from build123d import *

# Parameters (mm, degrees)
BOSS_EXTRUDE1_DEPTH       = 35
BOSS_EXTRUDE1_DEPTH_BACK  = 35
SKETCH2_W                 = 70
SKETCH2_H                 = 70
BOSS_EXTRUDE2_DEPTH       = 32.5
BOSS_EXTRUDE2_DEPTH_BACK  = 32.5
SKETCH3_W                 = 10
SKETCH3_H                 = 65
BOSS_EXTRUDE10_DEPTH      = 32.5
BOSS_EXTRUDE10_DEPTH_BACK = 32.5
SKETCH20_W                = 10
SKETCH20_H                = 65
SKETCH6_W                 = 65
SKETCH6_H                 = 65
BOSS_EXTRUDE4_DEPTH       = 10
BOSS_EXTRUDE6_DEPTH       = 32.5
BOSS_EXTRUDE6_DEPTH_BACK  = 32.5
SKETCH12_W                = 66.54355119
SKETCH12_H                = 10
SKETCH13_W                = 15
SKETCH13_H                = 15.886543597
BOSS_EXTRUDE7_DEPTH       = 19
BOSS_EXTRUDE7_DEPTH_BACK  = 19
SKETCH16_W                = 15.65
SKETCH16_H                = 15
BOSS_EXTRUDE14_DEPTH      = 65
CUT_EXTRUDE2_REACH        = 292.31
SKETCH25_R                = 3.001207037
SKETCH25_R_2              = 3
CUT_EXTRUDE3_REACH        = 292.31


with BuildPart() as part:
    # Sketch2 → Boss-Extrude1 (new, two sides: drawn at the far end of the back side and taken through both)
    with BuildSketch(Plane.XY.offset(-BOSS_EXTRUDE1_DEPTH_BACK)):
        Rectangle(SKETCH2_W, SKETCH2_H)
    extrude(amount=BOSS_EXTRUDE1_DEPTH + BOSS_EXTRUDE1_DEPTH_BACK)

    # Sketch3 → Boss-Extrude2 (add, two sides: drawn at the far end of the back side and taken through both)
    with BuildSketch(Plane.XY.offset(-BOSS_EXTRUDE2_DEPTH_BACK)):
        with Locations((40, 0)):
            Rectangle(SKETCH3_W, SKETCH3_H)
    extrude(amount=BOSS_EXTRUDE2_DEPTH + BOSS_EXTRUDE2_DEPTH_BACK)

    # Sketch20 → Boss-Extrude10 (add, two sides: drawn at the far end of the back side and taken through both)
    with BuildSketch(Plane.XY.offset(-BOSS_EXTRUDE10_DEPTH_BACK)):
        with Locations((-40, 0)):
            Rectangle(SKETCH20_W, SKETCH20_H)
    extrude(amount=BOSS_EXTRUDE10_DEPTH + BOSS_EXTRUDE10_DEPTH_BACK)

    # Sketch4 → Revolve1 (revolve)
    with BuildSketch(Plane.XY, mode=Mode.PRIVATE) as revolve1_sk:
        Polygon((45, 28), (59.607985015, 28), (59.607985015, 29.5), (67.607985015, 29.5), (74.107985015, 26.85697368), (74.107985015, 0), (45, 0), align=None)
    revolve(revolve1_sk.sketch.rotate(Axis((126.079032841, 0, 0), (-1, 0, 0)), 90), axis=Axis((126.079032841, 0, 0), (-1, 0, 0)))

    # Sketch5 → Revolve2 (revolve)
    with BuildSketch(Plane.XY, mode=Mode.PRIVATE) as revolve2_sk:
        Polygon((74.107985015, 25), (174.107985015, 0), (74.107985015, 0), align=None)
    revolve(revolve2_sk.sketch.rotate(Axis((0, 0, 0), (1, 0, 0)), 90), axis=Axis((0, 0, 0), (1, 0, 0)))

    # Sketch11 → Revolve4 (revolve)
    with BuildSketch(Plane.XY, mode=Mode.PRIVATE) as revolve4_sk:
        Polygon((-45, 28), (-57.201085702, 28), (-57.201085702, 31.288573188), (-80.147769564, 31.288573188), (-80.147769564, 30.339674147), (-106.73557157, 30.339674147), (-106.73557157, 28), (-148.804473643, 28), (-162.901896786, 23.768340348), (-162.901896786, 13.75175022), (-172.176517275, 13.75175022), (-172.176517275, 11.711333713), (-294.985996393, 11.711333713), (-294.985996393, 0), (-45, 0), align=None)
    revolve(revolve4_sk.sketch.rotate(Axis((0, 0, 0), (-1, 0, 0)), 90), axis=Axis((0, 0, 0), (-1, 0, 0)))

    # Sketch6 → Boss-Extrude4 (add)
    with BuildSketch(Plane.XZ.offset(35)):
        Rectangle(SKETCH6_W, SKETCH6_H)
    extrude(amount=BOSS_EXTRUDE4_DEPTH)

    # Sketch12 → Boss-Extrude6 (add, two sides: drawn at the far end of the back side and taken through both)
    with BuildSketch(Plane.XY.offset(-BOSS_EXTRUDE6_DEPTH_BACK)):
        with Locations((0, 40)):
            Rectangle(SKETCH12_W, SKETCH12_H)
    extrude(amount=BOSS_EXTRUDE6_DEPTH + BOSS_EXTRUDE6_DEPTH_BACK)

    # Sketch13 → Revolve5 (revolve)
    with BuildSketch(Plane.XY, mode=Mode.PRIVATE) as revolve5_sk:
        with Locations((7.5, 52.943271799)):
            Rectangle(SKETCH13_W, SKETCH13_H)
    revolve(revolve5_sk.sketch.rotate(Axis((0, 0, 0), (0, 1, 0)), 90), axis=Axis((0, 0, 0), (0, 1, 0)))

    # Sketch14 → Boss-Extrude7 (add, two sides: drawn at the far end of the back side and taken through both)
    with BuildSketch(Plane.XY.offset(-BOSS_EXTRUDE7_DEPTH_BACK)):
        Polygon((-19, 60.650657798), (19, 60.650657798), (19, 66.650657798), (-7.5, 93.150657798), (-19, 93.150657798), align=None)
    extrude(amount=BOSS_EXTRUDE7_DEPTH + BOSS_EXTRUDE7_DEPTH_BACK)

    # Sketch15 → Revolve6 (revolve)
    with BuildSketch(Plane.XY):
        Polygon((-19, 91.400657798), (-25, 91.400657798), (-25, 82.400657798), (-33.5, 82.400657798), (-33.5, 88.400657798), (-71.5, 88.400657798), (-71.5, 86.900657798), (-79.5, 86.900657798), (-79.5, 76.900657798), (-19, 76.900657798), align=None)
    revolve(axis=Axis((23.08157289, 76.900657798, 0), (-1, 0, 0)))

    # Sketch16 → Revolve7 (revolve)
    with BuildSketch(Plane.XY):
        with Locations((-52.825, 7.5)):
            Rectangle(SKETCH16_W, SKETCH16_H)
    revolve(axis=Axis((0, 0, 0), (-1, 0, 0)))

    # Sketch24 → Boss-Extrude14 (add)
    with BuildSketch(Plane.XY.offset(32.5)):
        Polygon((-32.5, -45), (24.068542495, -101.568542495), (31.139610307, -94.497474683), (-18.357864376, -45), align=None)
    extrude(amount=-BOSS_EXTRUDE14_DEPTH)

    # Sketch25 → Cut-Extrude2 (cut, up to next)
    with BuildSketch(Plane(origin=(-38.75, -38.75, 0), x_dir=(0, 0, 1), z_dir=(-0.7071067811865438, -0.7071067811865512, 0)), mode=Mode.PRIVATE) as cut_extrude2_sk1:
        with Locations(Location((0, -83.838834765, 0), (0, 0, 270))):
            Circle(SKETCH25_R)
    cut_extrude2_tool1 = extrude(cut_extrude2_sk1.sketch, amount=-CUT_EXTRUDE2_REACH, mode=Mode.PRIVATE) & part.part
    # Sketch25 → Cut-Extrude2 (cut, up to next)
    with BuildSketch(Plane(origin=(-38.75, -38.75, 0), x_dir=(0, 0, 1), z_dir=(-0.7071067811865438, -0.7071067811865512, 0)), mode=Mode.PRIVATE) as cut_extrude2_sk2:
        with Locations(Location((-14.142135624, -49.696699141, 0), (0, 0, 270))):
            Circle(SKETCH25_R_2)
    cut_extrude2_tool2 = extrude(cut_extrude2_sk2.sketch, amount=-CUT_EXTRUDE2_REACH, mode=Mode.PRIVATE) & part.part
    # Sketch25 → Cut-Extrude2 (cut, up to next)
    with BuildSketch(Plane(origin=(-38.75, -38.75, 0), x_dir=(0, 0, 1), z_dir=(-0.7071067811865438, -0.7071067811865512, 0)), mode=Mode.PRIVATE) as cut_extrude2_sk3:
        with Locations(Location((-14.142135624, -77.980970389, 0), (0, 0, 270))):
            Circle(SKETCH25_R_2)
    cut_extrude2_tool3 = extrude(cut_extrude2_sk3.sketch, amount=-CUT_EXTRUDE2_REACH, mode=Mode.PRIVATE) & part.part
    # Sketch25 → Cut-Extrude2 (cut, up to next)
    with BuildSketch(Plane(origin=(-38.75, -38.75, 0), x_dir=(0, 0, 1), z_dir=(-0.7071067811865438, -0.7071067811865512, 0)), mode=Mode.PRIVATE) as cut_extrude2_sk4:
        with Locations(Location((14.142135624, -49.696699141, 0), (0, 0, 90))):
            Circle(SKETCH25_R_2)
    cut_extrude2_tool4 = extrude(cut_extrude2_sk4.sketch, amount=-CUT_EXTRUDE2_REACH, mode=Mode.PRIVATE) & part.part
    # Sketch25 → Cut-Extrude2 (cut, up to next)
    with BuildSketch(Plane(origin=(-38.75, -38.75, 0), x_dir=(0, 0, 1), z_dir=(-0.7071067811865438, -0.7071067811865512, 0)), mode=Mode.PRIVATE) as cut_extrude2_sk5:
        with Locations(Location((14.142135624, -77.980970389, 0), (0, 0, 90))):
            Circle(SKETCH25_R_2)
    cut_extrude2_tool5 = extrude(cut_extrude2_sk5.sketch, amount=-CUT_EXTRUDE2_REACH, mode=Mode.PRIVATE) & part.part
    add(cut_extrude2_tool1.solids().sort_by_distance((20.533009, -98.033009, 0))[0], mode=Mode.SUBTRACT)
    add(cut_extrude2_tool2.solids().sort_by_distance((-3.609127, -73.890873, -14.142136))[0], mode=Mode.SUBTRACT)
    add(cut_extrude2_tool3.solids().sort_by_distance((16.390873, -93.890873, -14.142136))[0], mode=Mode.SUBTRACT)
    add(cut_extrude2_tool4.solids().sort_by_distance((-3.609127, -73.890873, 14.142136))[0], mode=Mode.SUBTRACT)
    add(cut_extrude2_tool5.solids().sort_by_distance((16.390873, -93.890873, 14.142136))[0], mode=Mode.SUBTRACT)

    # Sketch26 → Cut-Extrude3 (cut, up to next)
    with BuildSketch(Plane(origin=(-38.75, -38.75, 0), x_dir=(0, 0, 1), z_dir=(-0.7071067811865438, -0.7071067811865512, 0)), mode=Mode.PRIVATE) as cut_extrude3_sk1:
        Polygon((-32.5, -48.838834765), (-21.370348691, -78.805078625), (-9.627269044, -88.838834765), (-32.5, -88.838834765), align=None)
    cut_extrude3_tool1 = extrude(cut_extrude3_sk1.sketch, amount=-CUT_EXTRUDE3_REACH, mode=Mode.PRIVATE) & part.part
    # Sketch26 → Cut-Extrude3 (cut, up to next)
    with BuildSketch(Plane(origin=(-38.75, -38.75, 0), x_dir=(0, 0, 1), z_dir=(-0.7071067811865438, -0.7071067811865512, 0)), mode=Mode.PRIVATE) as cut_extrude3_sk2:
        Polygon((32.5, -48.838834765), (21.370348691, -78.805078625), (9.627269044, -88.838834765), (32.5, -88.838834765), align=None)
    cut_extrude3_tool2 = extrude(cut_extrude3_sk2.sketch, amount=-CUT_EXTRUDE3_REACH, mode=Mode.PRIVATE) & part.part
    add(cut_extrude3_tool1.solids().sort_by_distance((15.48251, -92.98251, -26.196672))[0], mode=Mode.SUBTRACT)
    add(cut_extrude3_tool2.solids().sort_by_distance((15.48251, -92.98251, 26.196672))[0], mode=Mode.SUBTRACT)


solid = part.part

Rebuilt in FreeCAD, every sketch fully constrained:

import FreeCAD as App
import Part
import Sketcher

V = App.Vector
Q = App.Units.Quantity

doc = App.newDocument("Part")
body = doc.addObject("PartDesign::Body", "Body")

sketch1 = doc.addObject("Sketcher::SketchObject", "Sketch")
body.addObject(sketch1)
sketch1.AttachmentSupport = (doc.XY_Plane, [""])
sketch1.MapMode = "FlatFace"
sketch1.addGeometry([
    Part.LineSegment(V(-35, 35, 0), V(-35, -35, 0)),
    Part.LineSegment(V(-35, -35, 0), V(35, -35, 0)),
    Part.LineSegment(V(35, -35, 0), V(35, 35, 0)),
    Part.LineSegment(V(35, 35, 0), V(-35, 35, 0)),
], False)
sketch1.addConstraint([
    Sketcher.Constraint("Coincident", 0, 2, 1, 1),
    Sketcher.Constraint("Coincident", 1, 2, 2, 1),
    Sketcher.Constraint("Coincident", 2, 2, 3, 1),
    Sketcher.Constraint("Coincident", 3, 2, 0, 1),
    Sketcher.Constraint("Vertical", 0),
    Sketcher.Constraint("Horizontal", 1),
    Sketcher.Constraint("Vertical", 2),
    Sketcher.Constraint("Horizontal", 3),
    Sketcher.Constraint("Symmetric", 0, 2, 2, 2, -1, 1),
    Sketcher.Constraint("Equal", 3, 0),
    Sketcher.Constraint("DistanceX", 1, 1, 1, 2, 70.0),
])
pad1 = doc.addObject("PartDesign::Pad", "Pad")
body.addObject(pad1)
pad1.Profile = sketch1
pad1.Type = "TwoLengths"
pad1.Length = 35
pad1.Length2 = 35

sketch2 = doc.addObject("Sketcher::SketchObject", "Sketch001")
body.addObject(sketch2)
sketch2.AttachmentSupport = (doc.XY_Plane, [""])
sketch2.MapMode = "FlatFace"
sketch2.addGeometry([
    Part.LineSegment(V(35, 32, 0), V(35, -32, 0)),
    Part.LineSegment(V(35, -32, 0), V(45, -32, 0)),
    Part.LineSegment(V(45, -32, 0), V(45, 32, 0)),
    Part.LineSegment(V(45, 32, 0), V(35, 32, 0)),
], False)
sketch2.addConstraint([
    Sketcher.Constraint("Coincident", 0, 2, 1, 1),
    Sketcher.Constraint("Coincident", 1, 2, 2, 1),
    Sketcher.Constraint("Coincident", 2, 2, 3, 1),
    Sketcher.Constraint("Coincident", 3, 2, 0, 1),
    Sketcher.Constraint("Vertical", 0),
    Sketcher.Constraint("Horizontal", 1),
    Sketcher.Constraint("Vertical", 2),
    Sketcher.Constraint("Horizontal", 3),
    Sketcher.Constraint("DistanceX", 1, 1, 1, 2, 10.0),
    Sketcher.Constraint("DistanceY", 0, 2, 0, 1, 65.0),
    Sketcher.Constraint("DistanceX", -1, 1, 0, 2, 35.0),
    Sketcher.Constraint("DistanceY", 0, 2, -1, 1, 32.5),
])
pad2 = doc.addObject("PartDesign::Pad", "Pad001")
body.addObject(pad2)
pad2.Profile = sketch2
pad2.Type = "TwoLengths"
pad2.Length = 32.5
pad2.Length2 = 32.5

sketch3 = doc.addObject("Sketcher::SketchObject", "Sketch002")
body.addObject(sketch3)
sketch3.AttachmentSupport = (doc.XY_Plane, [""])
sketch3.MapMode = "FlatFace"
sketch3.addGeometry([
    Part.LineSegment(V(-45, 32, 0), V(-45, -32, 0)),
    Part.LineSegment(V(-45, -32, 0), V(-35, -32, 0)),
    Part.LineSegment(V(-35, -32, 0), V(-35, 32, 0)),
    Part.LineSegment(V(-35, 32, 0), V(-45, 32, 0)),
], False)
sketch3.addConstraint([
    Sketcher.Constraint("Coincident", 0, 2, 1, 1),
    Sketcher.Constraint("Coincident", 1, 2, 2, 1),
    Sketcher.Constraint("Coincident", 2, 2, 3, 1),
    Sketcher.Constraint("Coincident", 3, 2, 0, 1),
    Sketcher.Constraint("Vertical", 0),
    Sketcher.Constraint("Horizontal", 1),
    Sketcher.Constraint("Vertical", 2),
    Sketcher.Constraint("Horizontal", 3),
    Sketcher.Constraint("DistanceX", 1, 1, 1, 2, 10.0),
    Sketcher.Constraint("DistanceY", 0, 2, 0, 1, 65.0),
    Sketcher.Constraint("DistanceX", 0, 2, -1, 1, 45.0),
    Sketcher.Constraint("DistanceY", 0, 2, -1, 1, 32.5),
])
pad3 = doc.addObject("PartDesign::Pad", "Pad002")
body.addObject(pad3)
pad3.Profile = sketch3
pad3.Type = "TwoLengths"
pad3.Length = 32.5
pad3.Length2 = 32.5

sketch4 = doc.addObject("Sketcher::SketchObject", "Sketch003")
body.addObject(sketch4)
sketch4.AttachmentSupport = (doc.XY_Plane, [""])
sketch4.MapMode = "FlatFace"
sketch4.addGeometry([
    Part.LineSegment(V(59.6, 28, 0), V(45, 28, 0)),
    Part.LineSegment(V(45, 28, 0), V(45, 0, 0)),
    Part.LineSegment(V(45, 0, 0), V(74.1, 0, 0)),
    Part.LineSegment(V(74.1, 0, 0), V(74.1, 26.9, 0)),
    Part.LineSegment(V(74.1, 26.9, 0), V(67.6, 29.5, 0)),
    Part.LineSegment(V(67.6, 29.5, 0), V(59.6, 29.5, 0)),
    Part.LineSegment(V(59.6, 29.5, 0), V(59.6, 28, 0)),
], False)
sketch4.addConstraint([
    Sketcher.Constraint("Coincident", 0, 2, 1, 1),
    Sketcher.Constraint("Coincident", 1, 2, 2, 1),
    Sketcher.Constraint("Coincident", 2, 2, 3, 1),
    Sketcher.Constraint("Coincident", 3, 2, 4, 1),
    Sketcher.Constraint("Coincident", 4, 2, 5, 1),
    Sketcher.Constraint("Coincident", 5, 2, 6, 1),
    Sketcher.Constraint("Coincident", 6, 2, 0, 1),
    Sketcher.Constraint("Horizontal", 0),
    Sketcher.Constraint("Vertical", 1),
    Sketcher.Constraint("Horizontal", 2),
    Sketcher.Constraint("Vertical", 3),
    Sketcher.Constraint("Horizontal", 5),
    Sketcher.Constraint("Vertical", 6),
    Sketcher.Constraint("PointOnObject", 1, 2, -1),
    Sketcher.Constraint("DistanceX", 5, 2, 5, 1, 8.0),
    Sketcher.Constraint("DistanceY", 1, 2, 1, 1, 28.0),
    Sketcher.Constraint("DistanceY", 6, 2, 6, 1, 1.5),
    Sketcher.Constraint("DistanceX", -1, 1, 0, 2, 45.0),
    Sketcher.Constraint("DistanceX", 4, 2, 3, 2, 6.5),
    Sketcher.Constraint("DistanceX", 0, 2, 0, 1, 14.607985),
    Sketcher.Constraint("DistanceY", 3, 1, 3, 2, 26.856974),
])
revolution = doc.addObject("PartDesign::Revolution", "Revolution")
body.addObject(revolution)
revolution.Profile = sketch4
revolution.ReferenceAxis = (sketch4, ["H_Axis"])
revolution.Angle = 360

sketch5 = doc.addObject("Sketcher::SketchObject", "Sketch004")
body.addObject(sketch5)
sketch5.AttachmentSupport = (doc.XY_Plane, [""])
sketch5.MapMode = "FlatFace"
sketch5.addGeometry([
    Part.LineSegment(V(174, 0, 0), V(74, 25, 0)),
    Part.LineSegment(V(74, 25, 0), V(74, 0, 0)),
    Part.LineSegment(V(74, 0, 0), V(174, 0, 0)),
], False)
sketch5.addConstraint([
    Sketcher.Constraint("Coincident", 0, 2, 1, 1),
    Sketcher.Constraint("Coincident", 1, 2, 2, 1),
    Sketcher.Constraint("Coincident", 2, 2, 0, 1),
    Sketcher.Constraint("Vertical", 1),
    Sketcher.Constraint("Horizontal", 2),
    Sketcher.Constraint("PointOnObject", 1, 2, -1),
    Sketcher.Constraint("DistanceX", 2, 1, 2, 2, 100.0),
    Sketcher.Constraint("DistanceY", 1, 2, 1, 1, 25.0),
    Sketcher.Constraint("DistanceX", -1, 1, 0, 2, 74.107985),
])
revolution2 = doc.addObject("PartDesign::Revolution", "Revolution001")
body.addObject(revolution2)
revolution2.Profile = sketch5
revolution2.ReferenceAxis = (sketch5, ["H_Axis"])
revolution2.Angle = 360

sketch6 = doc.addObject("Sketcher::SketchObject", "Sketch005")
body.addObject(sketch6)
sketch6.AttachmentSupport = (doc.XY_Plane, [""])
sketch6.MapMode = "FlatFace"
sketch6.addGeometry([
    Part.LineSegment(V(-45, 28, 0), V(-57.2, 28, 0)),
    Part.LineSegment(V(-57.2, 28, 0), V(-57.2, 31.3, 0)),
    Part.LineSegment(V(-57.2, 31.3, 0), V(-80.1, 31.3, 0)),
    Part.LineSegment(V(-80.1, 31.3, 0), V(-80.1, 30.3, 0)),
    Part.LineSegment(V(-80.1, 30.3, 0), V(-106.7, 30.3, 0)),
    Part.LineSegment(V(-106.7, 30.3, 0), V(-106.7, 28, 0)),
    Part.LineSegment(V(-106.7, 28, 0), V(-148.8, 28, 0)),
    Part.LineSegment(V(-148.8, 28, 0), V(-162.9, 23.8, 0)),
    Part.LineSegment(V(-162.9, 23.8, 0), V(-162.9, 13.8, 0)),
    Part.LineSegment(V(-162.9, 13.8, 0), V(-172.2, 13.8, 0)),
    Part.LineSegment(V(-172.2, 13.8, 0), V(-172.2, 11.7, 0)),
    Part.LineSegment(V(-172.2, 11.7, 0), V(-295, 11.7, 0)),
    Part.LineSegment(V(-295, 11.7, 0), V(-295, 0, 0)),
    Part.LineSegment(V(-295, 0, 0), V(-45, 0, 0)),
    Part.LineSegment(V(-45, 0, 0), V(-45, 28, 0)),
], False)
sketch6.addConstraint([
    Sketcher.Constraint("Coincident", 0, 2, 1, 1),
    Sketcher.Constraint("Coincident", 1, 2, 2, 1),
    Sketcher.Constraint("Coincident", 2, 2, 3, 1),
    Sketcher.Constraint("Coincident", 3, 2, 4, 1),
    Sketcher.Constraint("Coincident", 4, 2, 5, 1),
    Sketcher.Constraint("Coincident", 5, 2, 6, 1),
    Sketcher.Constraint("Coincident", 6, 2, 7, 1),
    Sketcher.Constraint("Coincident", 7, 2, 8, 1),
    Sketcher.Constraint("Coincident", 8, 2, 9, 1),
    Sketcher.Constraint("Coincident", 9, 2, 10, 1),
    Sketcher.Constraint("Coincident", 10, 2, 11, 1),
    Sketcher.Constraint("Coincident", 11, 2, 12, 1),
    Sketcher.Constraint("Coincident", 12, 2, 13, 1),
    Sketcher.Constraint("Coincident", 13, 2, 14, 1),
    Sketcher.Constraint("Coincident", 14, 2, 0, 1),
    Sketcher.Constraint("Horizontal", 0),
    Sketcher.Constraint("Vertical", 1),
    Sketcher.Constraint("Horizontal", 2),
    Sketcher.Constraint("Vertical", 3),
    Sketcher.Constraint("Horizontal", 4),
    Sketcher.Constraint("Vertical", 5),
    Sketcher.Constraint("Horizontal", 6),
    Sketcher.Constraint("Vertical", 8),
    Sketcher.Constraint("Horizontal", 9),
    Sketcher.Constraint("Vertical", 10),
    Sketcher.Constraint("Horizontal", 11),
    Sketcher.Constraint("Vertical", 12),
    Sketcher.Constraint("Horizontal", 13),
    Sketcher.Constraint("Vertical", 14),
    Sketcher.Constraint("PointOnObject", 12, 2, -1),
    Sketcher.Constraint("Horizontal", 0, 2, 5, 2),
    Sketcher.Constraint("DistanceY", 14, 1, 14, 2, 28.0),
    Sketcher.Constraint("DistanceX", 13, 2, -1, 1, 45.0),
    Sketcher.Constraint("DistanceY", 3, 2, 3, 1, 0.948899),
    Sketcher.Constraint("DistanceX", 9, 2, 9, 1, 9.27462),
    Sketcher.Constraint("DistanceX", 11, 2, 11, 1, 122.809479),
    Sketcher.Constraint("DistanceY", 8, 2, 8, 1, 10.01659),
    Sketcher.Constraint("Distance", 7, 14.718841),
    Sketcher.Constraint("DistanceX", 0, 2, 0, 1, 12.201086),
    Sketcher.Constraint("DistanceX", 2, 2, 2, 1, 22.946684),
    Sketcher.Constraint("DistanceX", 4, 2, 4, 1, 26.587802),
    Sketcher.Constraint("DistanceX", 6, 2, 6, 1, 42.068902),
    Sketcher.Constraint("DistanceX", 13, 1, 13, 2, 249.985996),
    Sketcher.Constraint("DistanceY", 1, 1, 1, 2, 3.288573),
    Sketcher.Constraint("DistanceY", 10, 2, 10, 1, 2.040417),
])
revolution3 = doc.addObject("PartDesign::Revolution", "Revolution002")
body.addObject(revolution3)
revolution3.Profile = sketch6
revolution3.ReferenceAxis = (sketch6, ["H_Axis"])
revolution3.Angle = 360

sketch7 = doc.addObject("Sketcher::SketchObject", "Sketch006")
body.addObject(sketch7)
sketch7.AttachmentSupport = (doc.XZ_Plane, [""])
sketch7.MapMode = "FlatFace"
sketch7.AttachmentOffset = App.Placement(V(0, 0, 35), App.Rotation())
sketch7.addGeometry([
    Part.LineSegment(V(-32, 32, 0), V(-32, -32, 0)),
    Part.LineSegment(V(-32, -32, 0), V(32, -32, 0)),
    Part.LineSegment(V(32, -32, 0), V(32, 32, 0)),
    Part.LineSegment(V(32, 32, 0), V(-32, 32, 0)),
], False)
sketch7.addConstraint([
    Sketcher.Constraint("Coincident", 0, 2, 1, 1),
    Sketcher.Constraint("Coincident", 1, 2, 2, 1),
    Sketcher.Constraint("Coincident", 2, 2, 3, 1),
    Sketcher.Constraint("Coincident", 3, 2, 0, 1),
    Sketcher.Constraint("Vertical", 0),
    Sketcher.Constraint("Horizontal", 1),
    Sketcher.Constraint("Vertical", 2),
    Sketcher.Constraint("Horizontal", 3),
    Sketcher.Constraint("Symmetric", 0, 2, 2, 2, -1, 1),
    Sketcher.Constraint("Equal", 3, 0),
    Sketcher.Constraint("DistanceX", 1, 1, 1, 2, 65.0),
])
pad4 = doc.addObject("PartDesign::Pad", "Pad003")
body.addObject(pad4)
pad4.Profile = sketch7
pad4.Length = 10

sketch8 = doc.addObject("Sketcher::SketchObject", "Sketch007")
body.addObject(sketch8)
sketch8.AttachmentSupport = (doc.XY_Plane, [""])
sketch8.MapMode = "FlatFace"
sketch8.addGeometry([
    Part.LineSegment(V(-33, 45, 0), V(-33, 35, 0)),
    Part.LineSegment(V(-33, 35, 0), V(33, 35, 0)),
    Part.LineSegment(V(33, 35, 0), V(33, 45, 0)),
    Part.LineSegment(V(33, 45, 0), V(-33, 45, 0)),
], False)
sketch8.addConstraint([
    Sketcher.Constraint("Coincident", 0, 2, 1, 1),
    Sketcher.Constraint("Coincident", 1, 2, 2, 1),
    Sketcher.Constraint("Coincident", 2, 2, 3, 1),
    Sketcher.Constraint("Coincident", 3, 2, 0, 1),
    Sketcher.Constraint("Vertical", 0),
    Sketcher.Constraint("Horizontal", 1),
    Sketcher.Constraint("Vertical", 2),
    Sketcher.Constraint("Horizontal", 3),
    Sketcher.Constraint("DistanceY", 0, 2, 0, 1, 10.0),
    Sketcher.Constraint("DistanceY", -1, 1, 0, 2, 35.0),
    Sketcher.Constraint("DistanceX", 1, 1, 1, 2, 66.543551),
    Sketcher.Constraint("DistanceX", 0, 2, -1, 1, 33.271776),
])
pad5 = doc.addObject("PartDesign::Pad", "Pad004")
body.addObject(pad5)
pad5.Profile = sketch8
pad5.Type = "TwoLengths"
pad5.Length = 32.5
pad5.Length2 = 32.5

sketch9 = doc.addObject("Sketcher::SketchObject", "Sketch008")
body.addObject(sketch9)
sketch9.AttachmentSupport = (doc.XY_Plane, [""])
sketch9.MapMode = "FlatFace"
sketch9.addGeometry([
    Part.LineSegment(V(0, 61, 0), V(0, 45, 0)),
    Part.LineSegment(V(0, 45, 0), V(15, 45, 0)),
    Part.LineSegment(V(15, 45, 0), V(15, 61, 0)),
    Part.LineSegment(V(15, 61, 0), V(0, 61, 0)),
], False)
sketch9.addConstraint([
    Sketcher.Constraint("Coincident", 0, 2, 1, 1),
    Sketcher.Constraint("Coincident", 1, 2, 2, 1),
    Sketcher.Constraint("Coincident", 2, 2, 3, 1),
    Sketcher.Constraint("Coincident", 3, 2, 0, 1),
    Sketcher.Constraint("Vertical", 0),
    Sketcher.Constraint("Horizontal", 1),
    Sketcher.Constraint("Vertical", 2),
    Sketcher.Constraint("Horizontal", 3),
    Sketcher.Constraint("PointOnObject", 0, 2, -2),
    Sketcher.Constraint("DistanceX", 1, 1, 1, 2, 15.0),
    Sketcher.Constraint("DistanceY", -1, 1, 0, 2, 45.0),
    Sketcher.Constraint("DistanceY", 0, 2, 0, 1, 15.886544),
])
revolution4 = doc.addObject("PartDesign::Revolution", "Revolution003")
body.addObject(revolution4)
revolution4.Profile = sketch9
revolution4.ReferenceAxis = (sketch9, ["V_Axis"])
revolution4.Angle = 360

sketch10 = doc.addObject("Sketcher::SketchObject", "Sketch009")
body.addObject(sketch10)
sketch10.AttachmentSupport = (doc.XY_Plane, [""])
sketch10.MapMode = "FlatFace"
sketch10.addGeometry([
    Part.LineSegment(V(-19, 61, 0), V(19, 61, 0)),
    Part.LineSegment(V(19, 61, 0), V(19, 67, 0)),
    Part.LineSegment(V(19, 67, 0), V(-8, 93, 0)),
    Part.LineSegment(V(-8, 93, 0), V(-19, 93, 0)),
    Part.LineSegment(V(-19, 93, 0), V(-19, 61, 0)),
], False)
sketch10.addConstraint([
    Sketcher.Constraint("Coincident", 0, 2, 1, 1),
    Sketcher.Constraint("Coincident", 1, 2, 2, 1),
    Sketcher.Constraint("Coincident", 2, 2, 3, 1),
    Sketcher.Constraint("Coincident", 3, 2, 4, 1),
    Sketcher.Constraint("Coincident", 4, 2, 0, 1),
    Sketcher.Constraint("Horizontal", 0),
    Sketcher.Constraint("Vertical", 1),
    Sketcher.Constraint("Horizontal", 3),
    Sketcher.Constraint("Vertical", 4),
    Sketcher.Constraint("DistanceX", 0, 1, 0, 2, 38.0),
    Sketcher.Constraint("DistanceY", 1, 1, 1, 2, 6.0),
    Sketcher.Constraint("Angle", 2, Q("135 deg")),
    Sketcher.Constraint("DistanceX", 3, 2, 3, 1, 11.5),
    Sketcher.Constraint("DistanceX", -1, 1, 0, 2, 19.0),
    Sketcher.Constraint("DistanceY", -1, 1, 0, 2, 60.650658),
])
pad6 = doc.addObject("PartDesign::Pad", "Pad005")
body.addObject(pad6)
pad6.Profile = sketch10
pad6.Type = "TwoLengths"
pad6.Length = 19
pad6.Length2 = 19

sketch11 = doc.addObject("Sketcher::SketchObject", "Sketch010")
body.addObject(sketch11)
sketch11.AttachmentSupport = (doc.XY_Plane, [""])
sketch11.MapMode = "FlatFace"
sketch11.addGeometry([
    Part.LineSegment(V(-19, 91.4, 0), V(-25, 91.4, 0)),
    Part.LineSegment(V(-25, 91.4, 0), V(-25, 82.4, 0)),
    Part.LineSegment(V(-25, 82.4, 0), V(-33.5, 82.4, 0)),
    Part.LineSegment(V(-33.5, 82.4, 0), V(-33.5, 88.4, 0)),
    Part.LineSegment(V(-33.5, 88.4, 0), V(-71.5, 88.4, 0)),
    Part.LineSegment(V(-71.5, 88.4, 0), V(-71.5, 86.9, 0)),
    Part.LineSegment(V(-71.5, 86.9, 0), V(-79.5, 86.9, 0)),
    Part.LineSegment(V(-79.5, 86.9, 0), V(-79.5, 76.9, 0)),
    Part.LineSegment(V(-79.5, 76.9, 0), V(-19, 76.9, 0)),
    Part.LineSegment(V(-19, 76.9, 0), V(-19, 91.4, 0)),
], False)
sketch11.addGeometry(Part.LineSegment(V(-19, 76.9, 0), V(-79.5, 76.9, 0)), True)
sketch11.addConstraint([
    Sketcher.Constraint("Coincident", 0, 2, 1, 1),
    Sketcher.Constraint("Coincident", 1, 2, 2, 1),
    Sketcher.Constraint("Coincident", 2, 2, 3, 1),
    Sketcher.Constraint("Coincident", 3, 2, 4, 1),
    Sketcher.Constraint("Coincident", 4, 2, 5, 1),
    Sketcher.Constraint("Coincident", 5, 2, 6, 1),
    Sketcher.Constraint("Coincident", 6, 2, 7, 1),
    Sketcher.Constraint("Coincident", 7, 2, 8, 1),
    Sketcher.Constraint("Coincident", 8, 2, 9, 1),
    Sketcher.Constraint("Coincident", 9, 2, 0, 1),
    Sketcher.Constraint("Horizontal", 0),
    Sketcher.Constraint("Vertical", 1),
    Sketcher.Constraint("Horizontal", 2),
    Sketcher.Constraint("Vertical", 3),
    Sketcher.Constraint("Horizontal", 4),
    Sketcher.Constraint("Vertical", 5),
    Sketcher.Constraint("Horizontal", 6),
    Sketcher.Constraint("Vertical", 7),
    Sketcher.Constraint("Horizontal", 8),
    Sketcher.Constraint("Vertical", 9),
    Sketcher.Constraint("Horizontal", 10),
    Sketcher.Constraint("Coincident", 10, 1, 8, 2),
    Sketcher.Constraint("Vertical", 6, 2, 10, 2),
    Sketcher.Constraint("Equal", 0, 3),
    Sketcher.Constraint("DistanceX", 0, 2, 0, 1, 6.0),
    Sketcher.Constraint("DistanceX", 4, 2, 4, 1, 38.0),
    Sketcher.Constraint("DistanceX", 6, 2, 6, 1, 8.0),
    Sketcher.Constraint("DistanceY", 1, 2, 1, 1, 9.0),
    Sketcher.Constraint("DistanceY", 7, 2, 7, 1, 10.0),
    Sketcher.Constraint("DistanceX", 2, 2, 2, 1, 8.5),
    Sketcher.Constraint("DistanceY", 5, 2, 5, 1, 1.5),
    Sketcher.Constraint("DistanceX", 0, 2, -1, 1, 25.0),
    Sketcher.Constraint("DistanceY", -1, 1, 0, 2, 91.400658),
])
revolution5 = doc.addObject("PartDesign::Revolution", "Revolution004")
body.addObject(revolution5)
revolution5.Profile = sketch11
revolution5.ReferenceAxis = (sketch11, ["Axis0"])
revolution5.Angle = 360

sketch12 = doc.addObject("Sketcher::SketchObject", "Sketch011")
body.addObject(sketch12)
sketch12.AttachmentSupport = (doc.XY_Plane, [""])
sketch12.MapMode = "FlatFace"
sketch12.addGeometry([
    Part.LineSegment(V(-61, 15, 0), V(-61, 0, 0)),
    Part.LineSegment(V(-61, 0, 0), V(-45, 0, 0)),
    Part.LineSegment(V(-45, 0, 0), V(-45, 15, 0)),
    Part.LineSegment(V(-45, 15, 0), V(-61, 15, 0)),
], False)
sketch12.addConstraint([
    Sketcher.Constraint("Coincident", 0, 2, 1, 1),
    Sketcher.Constraint("Coincident", 1, 2, 2, 1),
    Sketcher.Constraint("Coincident", 2, 2, 3, 1),
    Sketcher.Constraint("Coincident", 3, 2, 0, 1),
    Sketcher.Constraint("Vertical", 0),
    Sketcher.Constraint("Horizontal", 1),
    Sketcher.Constraint("Vertical", 2),
    Sketcher.Constraint("Horizontal", 3),
    Sketcher.Constraint("PointOnObject", 0, 2, -1),
    Sketcher.Constraint("DistanceY", 0, 2, 0, 1, 15.0),
    Sketcher.Constraint("DistanceX", 1, 2, -1, 1, 45.0),
    Sketcher.Constraint("DistanceX", 1, 1, 1, 2, 15.65),
])
revolution6 = doc.addObject("PartDesign::Revolution", "Revolution005")
body.addObject(revolution6)
revolution6.Profile = sketch12
revolution6.ReferenceAxis = (sketch12, ["H_Axis"])
revolution6.Angle = 360

sketch13 = doc.addObject("Sketcher::SketchObject", "Sketch012")
body.addObject(sketch13)
sketch13.AttachmentSupport = (doc.XY_Plane, [""])
sketch13.MapMode = "FlatFace"
sketch13.AttachmentOffset = App.Placement(V(0, 0, 32.5), App.Rotation())
sketch13.addGeometry([
    Part.LineSegment(V(-32, -45, 0), V(24, -102, 0)),
    Part.LineSegment(V(24, -102, 0), V(31, -94, 0)),
    Part.LineSegment(V(31, -94, 0), V(-18, -45, 0)),
    Part.LineSegment(V(-18, -45, 0), V(-32, -45, 0)),
], False)
sketch13.addConstraint([
    Sketcher.Constraint("Coincident", 0, 2, 1, 1),
    Sketcher.Constraint("Coincident", 1, 2, 2, 1),
    Sketcher.Constraint("Coincident", 2, 2, 3, 1),
    Sketcher.Constraint("Coincident", 3, 2, 0, 1),
    Sketcher.Constraint("Horizontal", 3),
    Sketcher.Constraint("Perpendicular", 0, 1),
    Sketcher.Constraint("Perpendicular", 1, 2),
    Sketcher.Constraint("Angle", 0, Q("-45 deg")),
    Sketcher.Constraint("Distance", 0, 80.0),
    Sketcher.Constraint("Distance", 1, 10.0),
    Sketcher.Constraint("DistanceY", 2, 2, -1, 1, 45.0),
    Sketcher.Constraint("DistanceX", 3, 2, -1, 1, 32.5),
])
pad7 = doc.addObject("PartDesign::Pad", "Pad006")
body.addObject(pad7)
pad7.Profile = sketch13
pad7.Length = 65
pad7.Reversed = True

sketch14 = doc.addObject("Sketcher::SketchObject", "Sketch013")
body.addObject(sketch14)
sketch14.Placement = App.Placement(V(-38.75, -38.75, 0), App.Rotation(V(0, 0, 1), V(-0.707106781, 0.707106781, 0), V(-0.707106781, -0.707106781, 0), "ZXY"))
sketch14.addGeometry(Part.Circle(V(0, -83.8, 0), V(0, 0, 1), 3), False)
sketch14.addConstraint([
    Sketcher.Constraint("PointOnObject", 0, 3, -2),
    Sketcher.Constraint("Diameter", 0, 6.002414),
    Sketcher.Constraint("DistanceY", 0, 3, -1, 1, 83.838835),
])
pocket1 = doc.addObject("PartDesign::Pocket", "Pocket")
body.addObject(pocket1)
pocket1.Profile = sketch14
pocket1.Type = "UpToFirst"

sketch15 = doc.addObject("Sketcher::SketchObject", "Sketch014")
body.addObject(sketch15)
sketch15.Placement = App.Placement(V(-38.75, -38.75, 0), App.Rotation(V(0, 0, 1), V(-0.707106781, 0.707106781, 0), V(-0.707106781, -0.707106781, 0), "ZXY"))
sketch15.addGeometry(Part.Circle(V(-14.1, -49.7, 0), V(0, 0, 1), 3), False)
sketch15.addConstraint([
    Sketcher.Constraint("Diameter", 0, 6.0),
    Sketcher.Constraint("DistanceY", 0, 3, -1, 1, 49.696699),
    Sketcher.Constraint("DistanceX", 0, 3, -1, 1, 14.142136),
])
pocket2 = doc.addObject("PartDesign::Pocket", "Pocket001")
body.addObject(pocket2)
pocket2.Profile = sketch15
pocket2.Type = "UpToFirst"

sketch16 = doc.addObject("Sketcher::SketchObject", "Sketch015")
body.addObject(sketch16)
sketch16.Placement = App.Placement(V(-38.75, -38.75, 0), App.Rotation(V(0, 0, 1), V(-0.707106781, 0.707106781, 0), V(-0.707106781, -0.707106781, 0), "ZXY"))
sketch16.addGeometry(Part.Circle(V(-14.1, -78, 0), V(0, 0, 1), 3), False)
sketch16.addConstraint([
    Sketcher.Constraint("Diameter", 0, 6.0),
    Sketcher.Constraint("DistanceY", 0, 3, -1, 1, 77.98097),
    Sketcher.Constraint("DistanceX", 0, 3, -1, 1, 14.142136),
])
pocket3 = doc.addObject("PartDesign::Pocket", "Pocket002")
body.addObject(pocket3)
pocket3.Profile = sketch16
pocket3.Type = "UpToFirst"

sketch17 = doc.addObject("Sketcher::SketchObject", "Sketch016")
body.addObject(sketch17)
sketch17.Placement = App.Placement(V(-38.75, -38.75, 0), App.Rotation(V(0, 0, 1), V(-0.707106781, 0.707106781, 0), V(-0.707106781, -0.707106781, 0), "ZXY"))
sketch17.addGeometry(Part.Circle(V(14.1, -49.7, 0), V(0, 0, 1), 3), False)
sketch17.addConstraint([
    Sketcher.Constraint("Diameter", 0, 6.0),
    Sketcher.Constraint("DistanceY", 0, 3, -1, 1, 49.696699),
    Sketcher.Constraint("DistanceX", -1, 1, 0, 3, 14.142136),
])
pocket4 = doc.addObject("PartDesign::Pocket", "Pocket003")
body.addObject(pocket4)
pocket4.Profile = sketch17
pocket4.Type = "UpToFirst"

sketch18 = doc.addObject("Sketcher::SketchObject", "Sketch017")
body.addObject(sketch18)
sketch18.Placement = App.Placement(V(-38.75, -38.75, 0), App.Rotation(V(0, 0, 1), V(-0.707106781, 0.707106781, 0), V(-0.707106781, -0.707106781, 0), "ZXY"))
sketch18.addGeometry(Part.Circle(V(14.1, -78, 0), V(0, 0, 1), 3), False)
sketch18.addConstraint([
    Sketcher.Constraint("Diameter", 0, 6.0),
    Sketcher.Constraint("DistanceY", 0, 3, -1, 1, 77.98097),
    Sketcher.Constraint("DistanceX", -1, 1, 0, 3, 14.142136),
])
pocket5 = doc.addObject("PartDesign::Pocket", "Pocket004")
body.addObject(pocket5)
pocket5.Profile = sketch18
pocket5.Type = "UpToFirst"

sketch19 = doc.addObject("Sketcher::SketchObject", "Sketch018")
body.addObject(sketch19)
sketch19.Placement = App.Placement(V(-38.75, -38.75, 0), App.Rotation(V(0, 0, 1), V(-0.707106781, 0.707106781, 0), V(-0.707106781, -0.707106781, 0), "ZXY"))
sketch19.addGeometry([
    Part.LineSegment(V(-21, -79, 0), V(-32, -49, 0)),
    Part.LineSegment(V(-32, -49, 0), V(-32, -89, 0)),
    Part.LineSegment(V(-32, -89, 0), V(-10, -89, 0)),
    Part.LineSegment(V(-10, -89, 0), V(-21, -79, 0)),
], False)
sketch19.addConstraint([
    Sketcher.Constraint("Coincident", 0, 2, 1, 1),
    Sketcher.Constraint("Coincident", 1, 2, 2, 1),
    Sketcher.Constraint("Coincident", 2, 2, 3, 1),
    Sketcher.Constraint("Coincident", 3, 2, 0, 1),
    Sketcher.Constraint("Vertical", 1),
    Sketcher.Constraint("Horizontal", 2),
    Sketcher.Constraint("DistanceY", 1, 2, 1, 1, 40.0),
    Sketcher.Constraint("DistanceX", 0, 2, -1, 1, 32.5),
    Sketcher.Constraint("DistanceX", 2, 1, 2, 2, 22.872731),
    Sketcher.Constraint("Distance", 0, 31.966309),
    Sketcher.Constraint("Distance", 3, 15.445911),
    Sketcher.Constraint("DistanceY", 3, 2, -1, 1, 78.805079),
])
pocket6 = doc.addObject("PartDesign::Pocket", "Pocket005")
body.addObject(pocket6)
pocket6.Profile = sketch19
pocket6.Type = "UpToFirst"

sketch20 = doc.addObject("Sketcher::SketchObject", "Sketch019")
body.addObject(sketch20)
sketch20.Placement = App.Placement(V(-38.75, -38.75, 0), App.Rotation(V(0, 0, 1), V(-0.707106781, 0.707106781, 0), V(-0.707106781, -0.707106781, 0), "ZXY"))
sketch20.addGeometry([
    Part.LineSegment(V(32, -49, 0), V(21, -79, 0)),
    Part.LineSegment(V(21, -79, 0), V(10, -89, 0)),
    Part.LineSegment(V(10, -89, 0), V(32, -89, 0)),
    Part.LineSegment(V(32, -89, 0), V(32, -49, 0)),
], False)
sketch20.addConstraint([
    Sketcher.Constraint("Coincident", 0, 2, 1, 1),
    Sketcher.Constraint("Coincident", 1, 2, 2, 1),
    Sketcher.Constraint("Coincident", 2, 2, 3, 1),
    Sketcher.Constraint("Coincident", 3, 2, 0, 1),
    Sketcher.Constraint("Horizontal", 2),
    Sketcher.Constraint("Vertical", 3),
    Sketcher.Constraint("DistanceY", 3, 1, 3, 2, 40.0),
    Sketcher.Constraint("DistanceX", -1, 1, 2, 2, 32.5),
    Sketcher.Constraint("DistanceX", 2, 1, 2, 2, 22.872731),
    Sketcher.Constraint("Distance", 0, 31.966309),
    Sketcher.Constraint("Distance", 1, 15.445911),
    Sketcher.Constraint("DistanceY", 0, 2, -1, 1, 78.805079),
])
pocket7 = doc.addObject("PartDesign::Pocket", "Pocket006")
body.addObject(pocket7)
pocket7.Profile = sketch20
pocket7.Type = "UpToFirst"

doc.recompute()
